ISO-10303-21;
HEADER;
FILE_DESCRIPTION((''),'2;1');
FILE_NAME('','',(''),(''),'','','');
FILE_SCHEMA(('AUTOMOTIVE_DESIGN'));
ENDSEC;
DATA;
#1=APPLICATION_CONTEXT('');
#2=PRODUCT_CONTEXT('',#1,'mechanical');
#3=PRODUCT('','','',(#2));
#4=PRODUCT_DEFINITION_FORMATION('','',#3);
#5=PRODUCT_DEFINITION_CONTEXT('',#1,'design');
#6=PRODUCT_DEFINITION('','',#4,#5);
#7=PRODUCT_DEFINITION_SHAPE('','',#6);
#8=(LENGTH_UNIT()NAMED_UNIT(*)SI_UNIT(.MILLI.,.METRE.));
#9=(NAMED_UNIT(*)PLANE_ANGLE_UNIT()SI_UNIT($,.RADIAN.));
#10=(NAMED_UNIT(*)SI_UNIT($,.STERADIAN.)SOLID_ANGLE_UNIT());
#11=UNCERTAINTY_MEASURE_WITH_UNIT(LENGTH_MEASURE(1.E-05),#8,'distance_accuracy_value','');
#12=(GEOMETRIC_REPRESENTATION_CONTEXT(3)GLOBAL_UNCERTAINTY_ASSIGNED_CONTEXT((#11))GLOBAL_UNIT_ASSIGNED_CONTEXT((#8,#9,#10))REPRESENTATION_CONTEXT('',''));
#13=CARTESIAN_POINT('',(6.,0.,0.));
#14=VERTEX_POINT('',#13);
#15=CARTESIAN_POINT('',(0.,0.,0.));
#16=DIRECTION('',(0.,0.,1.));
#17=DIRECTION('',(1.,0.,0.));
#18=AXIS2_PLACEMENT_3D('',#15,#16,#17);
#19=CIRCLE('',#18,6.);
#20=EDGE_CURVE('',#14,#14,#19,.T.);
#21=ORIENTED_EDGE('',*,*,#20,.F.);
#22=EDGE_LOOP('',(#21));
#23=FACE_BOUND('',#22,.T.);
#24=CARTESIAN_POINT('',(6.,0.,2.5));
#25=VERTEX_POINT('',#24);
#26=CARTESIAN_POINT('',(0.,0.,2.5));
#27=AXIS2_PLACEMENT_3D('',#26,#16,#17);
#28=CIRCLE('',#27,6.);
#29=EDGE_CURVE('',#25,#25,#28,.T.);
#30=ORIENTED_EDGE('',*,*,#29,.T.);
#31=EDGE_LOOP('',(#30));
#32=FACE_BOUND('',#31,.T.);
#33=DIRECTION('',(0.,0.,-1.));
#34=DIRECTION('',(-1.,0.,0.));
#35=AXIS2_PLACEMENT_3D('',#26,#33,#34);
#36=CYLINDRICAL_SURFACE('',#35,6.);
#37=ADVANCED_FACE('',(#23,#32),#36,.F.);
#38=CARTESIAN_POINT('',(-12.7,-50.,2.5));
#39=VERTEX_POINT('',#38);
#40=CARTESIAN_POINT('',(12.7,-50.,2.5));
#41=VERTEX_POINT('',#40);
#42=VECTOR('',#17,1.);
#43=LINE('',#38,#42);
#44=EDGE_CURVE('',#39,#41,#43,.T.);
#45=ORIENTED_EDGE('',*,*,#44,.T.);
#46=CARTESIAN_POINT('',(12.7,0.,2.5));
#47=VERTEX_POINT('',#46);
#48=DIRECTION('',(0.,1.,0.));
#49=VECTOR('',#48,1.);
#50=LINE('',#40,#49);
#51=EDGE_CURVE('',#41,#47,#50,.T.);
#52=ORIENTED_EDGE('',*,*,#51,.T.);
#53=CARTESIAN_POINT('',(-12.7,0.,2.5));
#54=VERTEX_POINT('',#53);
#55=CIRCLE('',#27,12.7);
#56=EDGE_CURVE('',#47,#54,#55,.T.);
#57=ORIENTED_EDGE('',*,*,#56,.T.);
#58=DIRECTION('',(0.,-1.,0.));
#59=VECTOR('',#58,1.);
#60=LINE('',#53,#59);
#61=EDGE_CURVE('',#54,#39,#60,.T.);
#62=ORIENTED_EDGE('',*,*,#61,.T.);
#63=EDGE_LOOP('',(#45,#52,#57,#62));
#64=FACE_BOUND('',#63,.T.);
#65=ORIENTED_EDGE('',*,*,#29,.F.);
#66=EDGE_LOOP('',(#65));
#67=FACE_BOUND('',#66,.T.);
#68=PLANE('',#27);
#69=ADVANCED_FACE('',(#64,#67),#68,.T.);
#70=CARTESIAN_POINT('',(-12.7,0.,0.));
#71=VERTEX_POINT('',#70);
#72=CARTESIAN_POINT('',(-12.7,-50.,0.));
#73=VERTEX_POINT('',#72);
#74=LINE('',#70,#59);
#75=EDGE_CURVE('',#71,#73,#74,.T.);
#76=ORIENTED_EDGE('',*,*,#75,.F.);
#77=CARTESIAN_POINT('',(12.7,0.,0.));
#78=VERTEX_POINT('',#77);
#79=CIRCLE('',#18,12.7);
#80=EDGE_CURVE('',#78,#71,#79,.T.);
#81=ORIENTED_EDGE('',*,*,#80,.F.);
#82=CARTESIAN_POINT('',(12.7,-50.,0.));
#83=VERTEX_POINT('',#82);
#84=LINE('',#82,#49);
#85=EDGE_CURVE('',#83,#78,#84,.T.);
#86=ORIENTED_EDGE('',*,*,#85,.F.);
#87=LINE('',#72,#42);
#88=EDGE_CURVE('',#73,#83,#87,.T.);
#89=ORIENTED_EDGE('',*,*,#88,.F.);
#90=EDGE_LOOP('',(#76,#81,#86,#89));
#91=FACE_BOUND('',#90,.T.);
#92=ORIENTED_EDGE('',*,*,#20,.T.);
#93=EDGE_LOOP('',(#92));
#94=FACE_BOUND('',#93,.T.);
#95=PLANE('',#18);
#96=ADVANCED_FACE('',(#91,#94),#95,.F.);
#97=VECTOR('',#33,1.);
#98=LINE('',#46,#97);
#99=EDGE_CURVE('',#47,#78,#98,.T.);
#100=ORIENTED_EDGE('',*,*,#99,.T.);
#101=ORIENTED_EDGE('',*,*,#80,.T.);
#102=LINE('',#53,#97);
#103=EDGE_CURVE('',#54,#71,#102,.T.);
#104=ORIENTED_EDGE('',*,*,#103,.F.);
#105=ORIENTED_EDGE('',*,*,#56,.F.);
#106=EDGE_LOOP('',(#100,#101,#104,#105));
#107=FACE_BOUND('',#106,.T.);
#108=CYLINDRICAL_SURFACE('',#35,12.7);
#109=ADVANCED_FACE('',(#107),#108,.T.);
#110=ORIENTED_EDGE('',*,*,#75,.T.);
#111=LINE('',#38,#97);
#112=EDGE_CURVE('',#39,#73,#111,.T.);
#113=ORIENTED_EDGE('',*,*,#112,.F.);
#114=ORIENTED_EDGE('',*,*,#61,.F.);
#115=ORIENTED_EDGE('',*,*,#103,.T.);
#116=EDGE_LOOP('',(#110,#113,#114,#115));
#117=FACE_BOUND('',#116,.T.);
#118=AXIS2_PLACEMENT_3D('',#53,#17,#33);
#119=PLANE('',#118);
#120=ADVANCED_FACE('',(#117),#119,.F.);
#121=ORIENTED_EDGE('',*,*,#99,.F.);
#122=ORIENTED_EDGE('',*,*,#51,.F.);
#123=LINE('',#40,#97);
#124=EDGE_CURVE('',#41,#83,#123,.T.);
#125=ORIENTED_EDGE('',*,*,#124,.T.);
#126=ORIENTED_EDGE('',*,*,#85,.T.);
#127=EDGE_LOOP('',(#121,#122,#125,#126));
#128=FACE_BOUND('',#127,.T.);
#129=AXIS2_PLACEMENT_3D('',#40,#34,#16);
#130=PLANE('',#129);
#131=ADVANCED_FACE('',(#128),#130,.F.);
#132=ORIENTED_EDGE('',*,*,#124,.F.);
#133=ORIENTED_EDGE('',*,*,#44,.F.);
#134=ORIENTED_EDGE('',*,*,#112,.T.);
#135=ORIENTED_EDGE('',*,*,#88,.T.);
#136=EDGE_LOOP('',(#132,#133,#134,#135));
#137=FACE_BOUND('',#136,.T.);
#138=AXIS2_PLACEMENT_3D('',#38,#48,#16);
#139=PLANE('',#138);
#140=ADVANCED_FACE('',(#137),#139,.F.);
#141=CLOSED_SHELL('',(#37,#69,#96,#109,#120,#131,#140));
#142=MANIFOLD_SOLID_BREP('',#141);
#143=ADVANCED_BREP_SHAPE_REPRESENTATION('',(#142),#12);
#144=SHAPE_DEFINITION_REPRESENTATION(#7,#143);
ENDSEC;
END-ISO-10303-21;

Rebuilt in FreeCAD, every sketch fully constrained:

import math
import FreeCAD as App
import Part
import Sketcher

doc = App.newDocument("Part")
body = doc.addObject("PartDesign::Body", "Body")

# Sketch on XY plane
sketch1 = body.newObject("Sketcher::SketchObject", "Sketch")
sketch1.AttachmentSupport = (doc.getObject("XY_Plane"), [""])
sketch1.MapMode = "FlatFace"
sketch1.addGeometry(Part.LineSegment(App.Vector(-13, 0, 0), App.Vector(-13, -50, 0)), False)
sketch1.addGeometry(Part.LineSegment(App.Vector(-13, -50, 0), App.Vector(13, -50, 0)), False)
sketch1.addGeometry(Part.LineSegment(App.Vector(13, -50, 0), App.Vector(13, 0, 0)), False)
sketch1.addGeometry(Part.ArcOfCircle(Part.Circle(App.Vector(0, 0, 0), App.Vector(0, 0, 1), 13), math.radians(0), math.radians(180)), False)
sketch1.addGeometry(Part.Circle(App.Vector(0, 0, 0), App.Vector(0, 0, 1), 6), False)
sketch1.addConstraint(Sketcher.Constraint("Coincident", 0, 2, 1, 1))
sketch1.addConstraint(Sketcher.Constraint("Coincident", 1, 2, 2, 1))
sketch1.addConstraint(Sketcher.Constraint("Tangent", 2, 2, 3, 1))
sketch1.addConstraint(Sketcher.Constraint("Tangent", 3, 2, 0, 1))
sketch1.addConstraint(Sketcher.Constraint("Vertical", 0))
sketch1.addConstraint(Sketcher.Constraint("Horizontal", 1))
sketch1.addConstraint(Sketcher.Constraint("Vertical", 2))
sketch1.addConstraint(Sketcher.Constraint("Coincident", 3, 3, -1, 1))
sketch1.addConstraint(Sketcher.Constraint("Coincident", 4, 3, -1, 1))
sketch1.addConstraint(Sketcher.Constraint("Diameter", 4, 12.0))
sketch1.addConstraint(Sketcher.Constraint("Radius", 3, 12.7))
sketch1.addConstraint(Sketcher.Constraint("DistanceY", 0, 2, 0, 1, 50.0))
pad1 = body.newObject("PartDesign::Pad", "Pad")
pad1.Profile = sketch1
pad1.Length = 2.5

doc.recompute()
